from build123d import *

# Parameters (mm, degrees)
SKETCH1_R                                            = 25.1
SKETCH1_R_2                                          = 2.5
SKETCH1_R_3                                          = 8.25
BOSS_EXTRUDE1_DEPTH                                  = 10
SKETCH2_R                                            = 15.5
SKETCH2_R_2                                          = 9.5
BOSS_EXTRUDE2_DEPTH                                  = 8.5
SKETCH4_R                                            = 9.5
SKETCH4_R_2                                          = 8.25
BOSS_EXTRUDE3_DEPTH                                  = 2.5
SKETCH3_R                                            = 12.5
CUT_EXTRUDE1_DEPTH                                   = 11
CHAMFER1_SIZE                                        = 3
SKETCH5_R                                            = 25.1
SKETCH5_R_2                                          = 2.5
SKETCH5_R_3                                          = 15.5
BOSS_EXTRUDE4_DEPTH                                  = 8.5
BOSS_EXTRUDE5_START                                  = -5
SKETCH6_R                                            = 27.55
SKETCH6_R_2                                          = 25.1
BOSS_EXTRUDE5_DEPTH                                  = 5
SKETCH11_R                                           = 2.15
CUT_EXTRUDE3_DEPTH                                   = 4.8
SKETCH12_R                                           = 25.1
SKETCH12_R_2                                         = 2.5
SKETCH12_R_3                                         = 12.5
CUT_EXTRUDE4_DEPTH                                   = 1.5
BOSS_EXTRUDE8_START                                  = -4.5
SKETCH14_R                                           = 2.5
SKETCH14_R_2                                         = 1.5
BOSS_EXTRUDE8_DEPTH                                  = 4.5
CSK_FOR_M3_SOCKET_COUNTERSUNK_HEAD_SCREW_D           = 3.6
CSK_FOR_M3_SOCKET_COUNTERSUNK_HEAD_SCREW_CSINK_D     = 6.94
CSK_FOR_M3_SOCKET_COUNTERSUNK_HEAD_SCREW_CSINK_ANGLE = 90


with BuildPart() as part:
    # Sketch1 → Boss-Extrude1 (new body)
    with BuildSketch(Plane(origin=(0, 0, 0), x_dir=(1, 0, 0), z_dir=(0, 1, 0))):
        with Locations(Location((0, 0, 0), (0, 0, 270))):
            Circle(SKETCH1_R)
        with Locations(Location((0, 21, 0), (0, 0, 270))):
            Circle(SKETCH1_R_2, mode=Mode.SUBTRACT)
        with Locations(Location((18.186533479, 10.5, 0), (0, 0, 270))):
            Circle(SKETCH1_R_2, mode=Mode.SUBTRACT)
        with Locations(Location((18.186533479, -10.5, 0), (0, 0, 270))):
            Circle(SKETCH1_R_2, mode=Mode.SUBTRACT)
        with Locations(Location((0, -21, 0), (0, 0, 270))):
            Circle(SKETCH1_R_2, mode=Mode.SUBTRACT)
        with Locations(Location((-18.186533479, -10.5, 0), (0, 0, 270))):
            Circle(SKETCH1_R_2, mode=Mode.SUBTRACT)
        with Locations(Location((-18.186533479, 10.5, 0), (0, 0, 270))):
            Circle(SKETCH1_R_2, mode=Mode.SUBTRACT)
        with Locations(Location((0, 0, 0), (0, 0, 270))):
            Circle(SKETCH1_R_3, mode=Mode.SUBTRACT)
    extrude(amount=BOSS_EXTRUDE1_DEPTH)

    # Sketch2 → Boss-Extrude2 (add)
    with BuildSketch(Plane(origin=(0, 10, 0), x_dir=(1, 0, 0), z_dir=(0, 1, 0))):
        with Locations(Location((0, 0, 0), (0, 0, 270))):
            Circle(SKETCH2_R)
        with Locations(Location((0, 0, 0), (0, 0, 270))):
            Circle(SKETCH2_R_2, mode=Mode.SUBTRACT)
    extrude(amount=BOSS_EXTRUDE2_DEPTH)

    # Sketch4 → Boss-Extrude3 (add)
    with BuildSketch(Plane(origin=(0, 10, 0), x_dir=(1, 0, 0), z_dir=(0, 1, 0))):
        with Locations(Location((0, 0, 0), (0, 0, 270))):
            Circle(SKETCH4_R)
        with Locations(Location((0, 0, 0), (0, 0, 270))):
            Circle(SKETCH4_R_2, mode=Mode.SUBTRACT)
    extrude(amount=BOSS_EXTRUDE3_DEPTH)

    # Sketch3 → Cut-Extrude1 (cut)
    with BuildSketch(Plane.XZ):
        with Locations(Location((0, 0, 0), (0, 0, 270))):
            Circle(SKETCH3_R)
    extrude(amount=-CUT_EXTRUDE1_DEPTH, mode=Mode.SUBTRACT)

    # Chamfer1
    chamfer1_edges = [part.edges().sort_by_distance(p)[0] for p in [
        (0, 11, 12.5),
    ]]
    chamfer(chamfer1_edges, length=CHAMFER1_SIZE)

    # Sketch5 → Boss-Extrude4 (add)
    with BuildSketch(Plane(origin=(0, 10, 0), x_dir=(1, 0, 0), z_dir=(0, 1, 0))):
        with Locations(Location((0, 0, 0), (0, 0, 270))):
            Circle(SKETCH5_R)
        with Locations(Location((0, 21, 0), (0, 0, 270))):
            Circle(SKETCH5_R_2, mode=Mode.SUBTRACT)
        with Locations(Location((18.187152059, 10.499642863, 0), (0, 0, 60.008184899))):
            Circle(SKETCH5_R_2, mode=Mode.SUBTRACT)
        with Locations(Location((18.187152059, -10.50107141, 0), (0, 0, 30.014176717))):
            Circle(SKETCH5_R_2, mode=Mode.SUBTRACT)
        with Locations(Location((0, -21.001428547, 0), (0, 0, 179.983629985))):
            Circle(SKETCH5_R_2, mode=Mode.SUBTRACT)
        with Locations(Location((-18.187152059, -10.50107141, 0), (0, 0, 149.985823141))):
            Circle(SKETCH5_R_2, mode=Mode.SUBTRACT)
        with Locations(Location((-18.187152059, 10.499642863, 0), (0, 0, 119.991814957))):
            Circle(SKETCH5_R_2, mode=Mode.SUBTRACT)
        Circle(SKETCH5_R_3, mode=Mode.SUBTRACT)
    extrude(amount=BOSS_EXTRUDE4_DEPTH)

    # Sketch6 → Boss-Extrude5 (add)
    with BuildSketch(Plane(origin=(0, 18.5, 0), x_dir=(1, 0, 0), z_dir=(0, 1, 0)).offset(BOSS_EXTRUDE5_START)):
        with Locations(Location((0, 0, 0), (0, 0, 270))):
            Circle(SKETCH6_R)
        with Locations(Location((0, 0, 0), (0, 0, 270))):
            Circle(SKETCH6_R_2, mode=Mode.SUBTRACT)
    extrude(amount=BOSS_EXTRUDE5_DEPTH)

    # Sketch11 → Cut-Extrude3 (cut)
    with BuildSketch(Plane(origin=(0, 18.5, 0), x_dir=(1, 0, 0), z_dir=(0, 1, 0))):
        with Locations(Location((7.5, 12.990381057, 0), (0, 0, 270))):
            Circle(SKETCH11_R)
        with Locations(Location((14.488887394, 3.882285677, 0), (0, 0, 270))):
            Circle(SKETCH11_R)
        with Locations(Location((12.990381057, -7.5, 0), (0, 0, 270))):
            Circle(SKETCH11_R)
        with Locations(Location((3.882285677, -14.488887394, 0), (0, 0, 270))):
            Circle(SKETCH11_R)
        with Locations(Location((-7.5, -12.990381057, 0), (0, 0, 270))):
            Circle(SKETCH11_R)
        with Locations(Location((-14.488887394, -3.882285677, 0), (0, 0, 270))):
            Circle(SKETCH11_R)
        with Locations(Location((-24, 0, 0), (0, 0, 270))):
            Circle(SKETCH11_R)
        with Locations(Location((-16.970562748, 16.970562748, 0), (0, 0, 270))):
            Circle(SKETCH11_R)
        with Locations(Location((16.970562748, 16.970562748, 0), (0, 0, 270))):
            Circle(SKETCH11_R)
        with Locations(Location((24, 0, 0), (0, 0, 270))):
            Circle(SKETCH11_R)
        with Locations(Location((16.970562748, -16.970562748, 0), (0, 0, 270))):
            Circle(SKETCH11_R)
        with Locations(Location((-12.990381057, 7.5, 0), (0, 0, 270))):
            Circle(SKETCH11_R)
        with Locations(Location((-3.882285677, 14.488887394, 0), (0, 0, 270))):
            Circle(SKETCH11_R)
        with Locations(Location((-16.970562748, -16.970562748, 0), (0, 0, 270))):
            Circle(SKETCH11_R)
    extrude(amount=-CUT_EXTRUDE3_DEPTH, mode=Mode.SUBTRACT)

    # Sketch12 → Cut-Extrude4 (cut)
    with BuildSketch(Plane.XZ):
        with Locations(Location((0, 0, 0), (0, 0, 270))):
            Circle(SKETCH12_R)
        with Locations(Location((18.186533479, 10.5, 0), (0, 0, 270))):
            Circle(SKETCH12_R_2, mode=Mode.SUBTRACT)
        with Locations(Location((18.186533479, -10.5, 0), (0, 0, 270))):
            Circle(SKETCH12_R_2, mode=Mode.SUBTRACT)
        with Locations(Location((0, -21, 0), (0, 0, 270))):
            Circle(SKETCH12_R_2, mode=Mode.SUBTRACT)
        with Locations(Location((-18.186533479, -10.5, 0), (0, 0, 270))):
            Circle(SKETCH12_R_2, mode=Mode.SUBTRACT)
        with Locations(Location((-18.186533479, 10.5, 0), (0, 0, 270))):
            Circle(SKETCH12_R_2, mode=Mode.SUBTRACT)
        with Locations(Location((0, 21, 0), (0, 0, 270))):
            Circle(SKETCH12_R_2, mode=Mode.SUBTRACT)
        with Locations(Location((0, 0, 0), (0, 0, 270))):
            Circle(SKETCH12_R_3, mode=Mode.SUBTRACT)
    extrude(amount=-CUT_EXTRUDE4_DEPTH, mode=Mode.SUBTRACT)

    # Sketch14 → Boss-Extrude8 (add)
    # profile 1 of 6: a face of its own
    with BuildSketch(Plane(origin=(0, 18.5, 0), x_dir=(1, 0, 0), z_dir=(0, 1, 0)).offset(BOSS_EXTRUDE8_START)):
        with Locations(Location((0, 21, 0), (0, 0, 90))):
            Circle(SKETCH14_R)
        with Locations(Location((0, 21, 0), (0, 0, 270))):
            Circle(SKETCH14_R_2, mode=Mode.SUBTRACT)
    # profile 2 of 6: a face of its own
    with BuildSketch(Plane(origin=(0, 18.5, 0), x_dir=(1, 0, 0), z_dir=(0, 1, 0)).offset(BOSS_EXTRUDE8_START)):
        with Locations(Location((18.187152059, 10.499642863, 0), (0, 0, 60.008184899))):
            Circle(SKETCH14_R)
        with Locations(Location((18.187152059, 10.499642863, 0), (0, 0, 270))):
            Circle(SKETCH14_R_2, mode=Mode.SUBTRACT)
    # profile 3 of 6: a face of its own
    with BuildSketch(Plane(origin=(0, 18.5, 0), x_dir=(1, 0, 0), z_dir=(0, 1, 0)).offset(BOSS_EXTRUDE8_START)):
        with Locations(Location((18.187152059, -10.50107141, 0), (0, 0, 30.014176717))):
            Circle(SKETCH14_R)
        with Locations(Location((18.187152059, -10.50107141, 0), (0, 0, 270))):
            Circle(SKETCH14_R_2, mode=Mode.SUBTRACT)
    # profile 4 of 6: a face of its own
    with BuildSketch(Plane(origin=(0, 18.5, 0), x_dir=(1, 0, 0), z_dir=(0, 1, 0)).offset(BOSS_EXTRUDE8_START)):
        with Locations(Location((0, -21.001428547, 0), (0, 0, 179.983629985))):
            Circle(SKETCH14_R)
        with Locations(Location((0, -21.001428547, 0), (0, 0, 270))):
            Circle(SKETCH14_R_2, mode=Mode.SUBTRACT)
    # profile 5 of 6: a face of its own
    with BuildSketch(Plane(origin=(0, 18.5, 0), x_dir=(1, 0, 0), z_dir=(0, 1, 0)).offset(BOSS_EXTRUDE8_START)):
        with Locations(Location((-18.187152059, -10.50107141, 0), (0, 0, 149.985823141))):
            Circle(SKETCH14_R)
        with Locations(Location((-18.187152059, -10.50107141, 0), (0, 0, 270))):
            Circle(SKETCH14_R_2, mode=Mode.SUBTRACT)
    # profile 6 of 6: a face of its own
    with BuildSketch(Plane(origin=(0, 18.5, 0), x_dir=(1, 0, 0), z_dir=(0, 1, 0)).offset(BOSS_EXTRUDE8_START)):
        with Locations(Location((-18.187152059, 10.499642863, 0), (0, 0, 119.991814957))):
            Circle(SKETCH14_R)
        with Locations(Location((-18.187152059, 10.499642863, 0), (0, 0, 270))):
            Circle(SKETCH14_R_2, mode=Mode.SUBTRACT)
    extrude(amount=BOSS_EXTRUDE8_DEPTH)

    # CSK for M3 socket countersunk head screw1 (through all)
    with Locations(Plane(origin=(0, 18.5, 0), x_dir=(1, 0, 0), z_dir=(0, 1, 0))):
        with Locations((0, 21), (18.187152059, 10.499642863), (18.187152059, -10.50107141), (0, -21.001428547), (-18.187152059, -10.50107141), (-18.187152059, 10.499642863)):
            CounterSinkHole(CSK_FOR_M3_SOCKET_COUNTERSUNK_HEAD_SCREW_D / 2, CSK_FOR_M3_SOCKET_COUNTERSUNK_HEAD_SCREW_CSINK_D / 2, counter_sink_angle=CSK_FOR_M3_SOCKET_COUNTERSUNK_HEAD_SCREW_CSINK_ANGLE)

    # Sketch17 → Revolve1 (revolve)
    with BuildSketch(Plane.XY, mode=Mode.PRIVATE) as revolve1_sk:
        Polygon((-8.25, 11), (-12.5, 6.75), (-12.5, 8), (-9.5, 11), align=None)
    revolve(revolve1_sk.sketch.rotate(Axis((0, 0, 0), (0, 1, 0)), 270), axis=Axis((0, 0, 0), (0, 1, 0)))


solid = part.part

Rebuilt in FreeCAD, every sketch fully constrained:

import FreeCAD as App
import Part
import Sketcher

V = App.Vector
Q = App.Units.Quantity


def edges_at(feature, points):
    """Names of the edges that pass closest to the given points."""
    edges = feature.Shape.Edges
    near = lambda p: min(range(len(edges)), key=lambda i: edges[i].distToShape(Part.Vertex(*p))[0])
    return sorted({f"Edge{near(p) + 1}" for p in points})

doc = App.newDocument("Part")
body = doc.addObject("PartDesign::Body", "Body")

# Sketch on XZ plane
sketch1 = doc.addObject("Sketcher::SketchObject", "Sketch")
body.addObject(sketch1)
sketch1.AttachmentSupport = (doc.XZ_Plane, [""])
sketch1.MapMode = "FlatFace"
sketch1.addGeometry([
    Part.Circle(V(0, 0, 0), V(0, 0, 1), 25.1),  # 0
    Part.Circle(V(-18.2, -10.5, 0), V(0, 0, 1), 2.5),  # 1
    Part.Circle(V(0, -21, 0), V(0, 0, 1), 2.5),  # 2
    Part.Circle(V(-18.2, 10.5, 0), V(0, 0, 1), 2.5),  # 3
    Part.Circle(V(18.2, -10.5, 0), V(0, 0, 1), 2.5),  # 4
    Part.Circle(V(0, 0, 0), V(0, 0, 1), 8.2),  # 5
    Part.Circle(V(0, 21, 0), V(0, 0, 1), 2.5),  # 6
    Part.Circle(V(18.2, 10.5, 0), V(0, 0, 1), 2.5),  # 7
], False)
sketch1.addConstraint([
    Sketcher.Constraint("Coincident", 0, 3, -1, 1),
    Sketcher.Constraint("Coincident", 5, 3, -1, 1),
    Sketcher.Constraint("Equal", 1, 2),
    Sketcher.Constraint("Equal", 2, 3),
    Sketcher.Constraint("Equal", 3, 4),
    Sketcher.Constraint("Equal", 4, 6),
    Sketcher.Constraint("Equal", 6, 7),
    Sketcher.Constraint("Symmetric", 3, 3, 4, 3, -1, 1),
    Sketcher.Constraint("Symmetric", 2, 3, 6, 3, -1, 1),
    Sketcher.Constraint("Symmetric", 1, 3, 7, 3, -1, 1),
    Sketcher.Constraint("Symmetric", 1, 3, 4, 3, -2),
    Sketcher.Constraint("PointOnObject", 2, 3, -2),
    Sketcher.Constraint("Diameter", 1, Q("5 mm")),
    Sketcher.Constraint("Diameter", 0, Q("50.2 mm")),
    Sketcher.Constraint("Diameter", 5, Q("16.5 mm")),
    Sketcher.Constraint("DistanceY", 2, 3, -1, 1, Q("21 mm")),
    Sketcher.Constraint("DistanceY", 1, 3, 3, 3, Q("21 mm")),
    Sketcher.Constraint("DistanceX", 1, 3, -1, 1, Q("18.186533 mm")),
])
pad1 = doc.addObject("PartDesign::Pad", "Pad")
body.addObject(pad1)
pad1.Profile = sketch1
pad1.Length = 10
pad1.Reversed = True

# Sketch on XZ plane
sketch2 = doc.addObject("Sketcher::SketchObject", "Sketch001")
body.addObject(sketch2)
sketch2.AttachmentSupport = (doc.XZ_Plane, [""])
sketch2.MapMode = "FlatFace"
sketch2.AttachmentOffset = App.Placement(V(0, 0, -10), App.Rotation())
sketch2.addGeometry([
    Part.Circle(V(0, 0, 0), V(0, 0, 1), 16),
    Part.Circle(V(0, 0, 0), V(0, 0, 1), 10),
], False)
sketch2.addConstraint([
    Sketcher.Constraint("Coincident", 0, 3, -1, 1),
    Sketcher.Constraint("Coincident", 1, 3, -1, 1),
    Sketcher.Constraint("Diameter", 0, Q("31 mm")),
    Sketcher.Constraint("Diameter", 1, Q("19 mm")),
])
pad2 = doc.addObject("PartDesign::Pad", "Pad001")
body.addObject(pad2)
pad2.Profile = sketch2
pad2.Length = 8.5
pad2.Reversed = True

# Sketch on XZ plane
sketch3 = doc.addObject("Sketcher::SketchObject", "Sketch002")
body.addObject(sketch3)
sketch3.AttachmentSupport = (doc.XZ_Plane, [""])
sketch3.MapMode = "FlatFace"
sketch3.AttachmentOffset = App.Placement(V(0, 0, -10), App.Rotation())
sketch3.addGeometry([
    Part.Circle(V(0, 0, 0), V(0, 0, 1), 10),
    Part.Circle(V(0, 0, 0), V(0, 0, 1), 8),
], False)
sketch3.addConstraint([
    Sketcher.Constraint("Coincident", 0, 3, -1, 1),
    Sketcher.Constraint("Coincident", 1, 3, -1, 1),
    Sketcher.Constraint("Diameter", 0, Q("19 mm")),
    Sketcher.Constraint("Diameter", 1, Q("16.5 mm")),
])
pad3 = doc.addObject("PartDesign::Pad", "Pad002")
body.addObject(pad3)
pad3.Profile = sketch3
pad3.Length = 2.5
pad3.Reversed = True

# Sketch on XZ plane
sketch4 = doc.addObject("Sketcher::SketchObject", "Sketch003")
body.addObject(sketch4)
sketch4.AttachmentSupport = (doc.XZ_Plane, [""])
sketch4.MapMode = "FlatFace"
sketch4.addGeometry(Part.Circle(V(0, 0, 0), V(0, 0, 1), 12), False)
sketch4.addConstraint([
    Sketcher.Constraint("Coincident", 0, 3, -1, 1),
    Sketcher.Constraint("Diameter", 0, Q("25 mm")),
])
pocket1 = doc.addObject("PartDesign::Pocket", "Pocket")
body.addObject(pocket1)
pocket1.Profile = sketch4
pocket1.Length = 11
doc.recompute()

chamfer = doc.addObject("PartDesign::Chamfer", "Chamfer")
body.addObject(chamfer)
chamfer.Base = (pocket1, edges_at(pocket1, [(0, 11, 12.5)]))
chamfer.Size = 3

# Sketch on XZ plane
sketch5 = doc.addObject("Sketcher::SketchObject", "Sketch004")
body.addObject(sketch5)
sketch5.AttachmentSupport = (doc.XZ_Plane, [""])
sketch5.MapMode = "FlatFace"
sketch5.AttachmentOffset = App.Placement(V(0, 0, -10), App.Rotation())
sketch5.addGeometry([
    Part.Circle(V(0, 0, 0), V(0, 0, 1), 25.1),  # 0
    Part.Circle(V(-18.2, -10.5, 0), V(0, 0, 1), 2.5),  # 1
    Part.Circle(V(0, -21, 0), V(0, 0, 1), 2.5),  # 2
    Part.Circle(V(-18.2, 10.5, 0), V(0, 0, 1), 2.5),  # 3
    Part.Circle(V(0, 0, 0), V(0, 0, 1), 15.5),  # 4
    Part.Circle(V(18.2, -10.5, 0), V(0, 0, 1), 2.5),  # 5
    Part.Circle(V(0, 21, 0), V(0, 0, 1), 2.5),  # 6
    Part.Circle(V(18.2, 10.5, 0), V(0, 0, 1), 2.5),  # 7
], False)
sketch5.addConstraint([
    Sketcher.Constraint("Coincident", 0, 3, -1, 1),
    Sketcher.Constraint("Coincident", 4, 3, -1, 1),
    Sketcher.Constraint("Equal", 1, 2),
    Sketcher.Constraint("Equal", 2, 3),
    Sketcher.Constraint("Equal", 3, 5),
    Sketcher.Constraint("Equal", 5, 6),
    Sketcher.Constraint("Equal", 6, 7),
    Sketcher.Constraint("Symmetric", 1, 3, 5, 3, -2),
    Sketcher.Constraint("Symmetric", 3, 3, 7, 3, -2),
    Sketcher.Constraint("PointOnObject", 2, 3, -2),
    Sketcher.Constraint("PointOnObject", 6, 3, -2),
    Sketcher.Constraint("Vertical", 1, 3, 3, 3),
    Sketcher.Constraint("Diameter", 1, Q("5 mm")),
    Sketcher.Constraint("Diameter", 4, Q("31 mm")),
    Sketcher.Constraint("Diameter", 0, Q("50.2 mm")),
    Sketcher.Constraint("DistanceY", 2, 3, -1, 1, Q("21 mm")),
    Sketcher.Constraint("DistanceY", -1, 1, 3, 3, Q("10.501071 mm")),
    Sketcher.Constraint("DistanceY", -1, 1, 6, 3, Q("21.001429 mm")),
    Sketcher.Constraint("DistanceY", 1, 3, 6, 3, Q("31.501071 mm")),
    Sketcher.Constraint("DistanceX", 1, 3, -1, 1, Q("18.187152 mm")),
])
pad4 = doc.addObject("PartDesign::Pad", "Pad003")
body.addObject(pad4)
pad4.Profile = sketch5
pad4.Length = 8.5
pad4.Reversed = True

# Sketch on XZ plane
sketch6 = doc.addObject("Sketcher::SketchObject", "Sketch005")
body.addObject(sketch6)
sketch6.AttachmentSupport = (doc.XZ_Plane, [""])
sketch6.MapMode = "FlatFace"
sketch6.AttachmentOffset = App.Placement(V(0, 0, -13.5), App.Rotation())
sketch6.addGeometry([
    Part.Circle(V(0, 0, 0), V(0, 0, 1), 28),
    Part.Circle(V(0, 0, 0), V(0, 0, 1), 25),
], False)
sketch6.addConstraint([
    Sketcher.Constraint("Coincident", 0, 3, -1, 1),
    Sketcher.Constraint("Coincident", 1, 3, -1, 1),
    Sketcher.Constraint("Diameter", 0, Q("55.1 mm")),
    Sketcher.Constraint("Diameter", 1, Q("50.2 mm")),
])
pad5 = doc.addObject("PartDesign::Pad", "Pad004")
body.addObject(pad5)
pad5.Profile = sketch6
pad5.Length = 5
pad5.Reversed = True

# Sketch on XZ plane
sketch7 = doc.addObject("Sketcher::SketchObject", "Sketch006")
body.addObject(sketch7)
sketch7.AttachmentSupport = (doc.XZ_Plane, [""])
sketch7.MapMode = "FlatFace"
sketch7.AttachmentOffset = App.Placement(V(0, 0, -18.5), App.Rotation())
sketch7.addGeometry([
    Part.Circle(V(7.5, -13, 0), V(0, 0, 1), 2.1),  # 0
    Part.Circle(V(14.5, -3.9, 0), V(0, 0, 1), 2.1),  # 1
    Part.Circle(V(13, 7.5, 0), V(0, 0, 1), 2.1),  # 2
    Part.Circle(V(3.9, 14.5, 0), V(0, 0, 1), 2.1),  # 3
    Part.Circle(V(-7.5, 13, 0), V(0, 0, 1), 2.1),  # 4
    Part.Circle(V(-14.5, 3.9, 0), V(0, 0, 1), 2.1),  # 5
    Part.Circle(V(-24, 0, 0), V(0, 0, 1), 2.1),  # 6
    Part.Circle(V(-17, -17, 0), V(0, 0, 1), 2.1),  # 7
    Part.Circle(V(17, -17, 0), V(0, 0, 1), 2.1),  # 8
    Part.Circle(V(24, 0, 0), V(0, 0, 1), 2.1),  # 9
    Part.Circle(V(17, 17, 0), V(0, 0, 1), 2.1),  # 10
    Part.Circle(V(-13, -7.5, 0), V(0, 0, 1), 2.1),  # 11
    Part.Circle(V(-3.9, -14.5, 0), V(0, 0, 1), 2.1),  # 12
    Part.Circle(V(-17, 17, 0), V(0, 0, 1), 2.1),  # 13
], False)
sketch7.addConstraint([
    Sketcher.Constraint("Equal", 0, 1),
    Sketcher.Constraint("Equal", 1, 2),
    Sketcher.Constraint("Equal", 2, 3),
    Sketcher.Constraint("Equal", 3, 4),
    Sketcher.Constraint("Equal", 4, 5),
    Sketcher.Constraint("Equal", 5, 6),
    Sketcher.Constraint("Equal", 6, 7),
    Sketcher.Constraint("Equal", 7, 8),
    Sketcher.Constraint("Equal", 8, 9),
    Sketcher.Constraint("Equal", 9, 10),
    Sketcher.Constraint("Equal", 10, 11),
    Sketcher.Constraint("Equal", 11, 12),
    Sketcher.Constraint("Equal", 12, 13),
    Sketcher.Constraint("Symmetric", 0, 3, 4, 3, -1, 1),
    Sketcher.Constraint("Symmetric", 1, 3, 5, 3, -1, 1),
    Sketcher.Constraint("Symmetric", 6, 3, 9, 3, -1, 1),
    Sketcher.Constraint("Symmetric", 7, 3, 10, 3, -1, 1),
    Sketcher.Constraint("Symmetric", 2, 3, 11, 3, -1, 1),
    Sketcher.Constraint("Symmetric", 3, 3, 12, 3, -1, 1),
    Sketcher.Constraint("Symmetric", 8, 3, 13, 3, -1, 1),
    Sketcher.Constraint("Symmetric", 7, 3, 8, 3, -2),
    Sketcher.Constraint("PointOnObject", 6, 3, -1),
    Sketcher.Constraint("Diameter", 0, Q("4.3 mm")),
    Sketcher.Constraint("DistanceX", 6, 3, -1, 1, Q("24 mm")),
    Sketcher.Constraint("DistanceX", 4, 3, 0, 3, Q("15 mm")),
    Sketcher.Constraint("DistanceY", -1, 1, 2, 3, Q("7.5 mm")),
    Sketcher.Constraint("DistanceX", 3, 3, 1, 3, Q("10.606602 mm")),
    Sketcher.Constraint("DistanceY", 5, 3, 3, 3, Q("10.606602 mm")),
    Sketcher.Constraint("DistanceY", 0, 3, -1, 1, Q("12.990381 mm")),
    Sketcher.Constraint("DistanceX", -1, 1, 2, 3, Q("12.990381 mm")),
    Sketcher.Constraint("DistanceY", 0, 3, 3, 3, Q("27.479268 mm")),
    Sketcher.Constraint("DistanceX", 5, 3, 2, 3, Q("27.479268 mm")),
    Sketcher.Constraint("DistanceY", 7, 3, 5, 3, Q("20.852848 mm")),
    Sketcher.Constraint("DistanceX", 7, 3, 1, 3, Q("31.45945 mm")),
])
pocket2 = doc.addObject("PartDesign::Pocket", "Pocket001")
body.addObject(pocket2)
pocket2.Profile = sketch7
pocket2.Length = 4.8
pocket2.Reversed = True

# Sketch on XZ plane
sketch8 = doc.addObject("Sketcher::SketchObject", "Sketch007")
body.addObject(sketch8)
sketch8.AttachmentSupport = (doc.XZ_Plane, [""])
sketch8.MapMode = "FlatFace"
sketch8.addGeometry([
    Part.Circle(V(0, 0, 0), V(0, 0, 1), 25.1),  # 0
    Part.Circle(V(-18.2, 10.5, 0), V(0, 0, 1), 2.5),  # 1
    Part.Circle(V(0, 21, 0), V(0, 0, 1), 2.5),  # 2
    Part.Circle(V(-18.2, -10.5, 0), V(0, 0, 1), 2.5),  # 3
    Part.Circle(V(18.2, 10.5, 0), V(0, 0, 1), 2.5),  # 4
    Part.Circle(V(0, 0, 0), V(0, 0, 1), 12.5),  # 5
    Part.Circle(V(0, -21, 0), V(0, 0, 1), 2.5),  # 6
    Part.Circle(V(18.2, -10.5, 0), V(0, 0, 1), 2.5),  # 7
], False)
sketch8.addConstraint([
    Sketcher.Constraint("Coincident", 0, 3, -1, 1),
    Sketcher.Constraint("Coincident", 5, 3, -1, 1),
    Sketcher.Constraint("Equal", 1, 2),
    Sketcher.Constraint("Equal", 2, 3),
    Sketcher.Constraint("Equal", 3, 4),
    Sketcher.Constraint("Equal", 4, 6),
    Sketcher.Constraint("Equal", 6, 7),
    Sketcher.Constraint("Symmetric", 3, 3, 4, 3, -1, 1),
    Sketcher.Constraint("Symmetric", 2, 3, 6, 3, -1, 1),
    Sketcher.Constraint("Symmetric", 1, 3, 7, 3, -1, 1),
    Sketcher.Constraint("Symmetric", 1, 3, 4, 3, -2),
    Sketcher.Constraint("PointOnObject", 2, 3, -2),
    Sketcher.Constraint("Diameter", 1, Q("5 mm")),
    Sketcher.Constraint("Diameter", 5, Q("25 mm")),
    Sketcher.Constraint("Diameter", 0, Q("50.2 mm")),
    Sketcher.Constraint("DistanceY", -1, 1, 2, 3, Q("21 mm")),
    Sketcher.Constraint("DistanceY", 3, 3, 1, 3, Q("21 mm")),
    Sketcher.Constraint("DistanceX", 1, 3, -1, 1, Q("18.186533 mm")),
])
pocket3 = doc.addObject("PartDesign::Pocket", "Pocket002")
body.addObject(pocket3)
pocket3.Profile = sketch8
pocket3.Length = 1.5

# Sketch on XZ plane
sketch9 = doc.addObject("Sketcher::SketchObject", "Sketch008")
body.addObject(sketch9)
sketch9.AttachmentSupport = (doc.XZ_Plane, [""])
sketch9.MapMode = "FlatFace"
sketch9.AttachmentOffset = App.Placement(V(0, 0, -14), App.Rotation())
sketch9.addGeometry([
    Part.Circle(V(0, -21, 0), V(0, 0, 1), 2.5),  # 0
    Part.Circle(V(0, -21, 0), V(0, 0, 1), 1.5),  # 1
    Part.Circle(V(18.2, -10.5, 0), V(0, 0, 1), 2.5),  # 2
    Part.Circle(V(18.2, -10.5, 0), V(0, 0, 1), 1.5),  # 3
    Part.Circle(V(18.2, 10.5, 0), V(0, 0, 1), 2.5),  # 4
    Part.Circle(V(18.2, 10.5, 0), V(0, 0, 1), 1.5),  # 5
    Part.Circle(V(0, 21, 0), V(0, 0, 1), 2.5),  # 6
    Part.Circle(V(0, 21, 0), V(0, 0, 1), 1.5),  # 7
    Part.Circle(V(-18.2, 10.5, 0), V(0, 0, 1), 2.5),  # 8
    Part.Circle(V(-18.2, 10.5, 0), V(0, 0, 1), 1.5),  # 9
    Part.Circle(V(-18.2, -10.5, 0), V(0, 0, 1), 2.5),  # 10
    Part.Circle(V(-18.2, -10.5, 0), V(0, 0, 1), 1.5),  # 11
], False)
sketch9.addConstraint([
    Sketcher.Constraint("Coincident", 1, 3, 0, 3),
    Sketcher.Constraint("Coincident", 3, 3, 2, 3),
    Sketcher.Constraint("Coincident", 5, 3, 4, 3),
    Sketcher.Constraint("Coincident", 7, 3, 6, 3),
    Sketcher.Constraint("Coincident", 9, 3, 8, 3),
    Sketcher.Constraint("Coincident", 11, 3, 10, 3),
    Sketcher.Constraint("Equal", 0, 2),
    Sketcher.Constraint("Equal", 1, 3),
    Sketcher.Constraint("Equal", 2, 4),
    Sketcher.Constraint("Equal", 3, 5),
    Sketcher.Constraint("Equal", 4, 6),
    Sketcher.Constraint("Equal", 5, 7),
    Sketcher.Constraint("Equal", 6, 8),
    Sketcher.Constraint("Equal", 7, 9),
    Sketcher.Constraint("Equal", 8, 10),
    Sketcher.Constraint("Equal", 9, 11),
    Sketcher.Constraint("Symmetric", 4, 3, 8, 3, -2),
    Sketcher.Constraint("Symmetric", 2, 3, 10, 3, -2),
    Sketcher.Constraint("PointOnObject", 0, 3, -2),
    Sketcher.Constraint("PointOnObject", 6, 3, -2),
    Sketcher.Constraint("Vertical", 3, 3, 4, 3),
    Sketcher.Constraint("Diameter", 0, Q("5 mm")),
    Sketcher.Constraint("Diameter", 1, Q("3 mm")),
    Sketcher.Constraint("DistanceY", 0, 3, -1, 1, Q("21 mm")),
    Sketcher.Constraint("DistanceY", -1, 1, 4, 3, Q("10.501071 mm")),
    Sketcher.Constraint("DistanceY", -1, 1, 6, 3, Q("21.001429 mm")),
    Sketcher.Constraint("DistanceY", 2, 3, 6, 3, Q("31.501071 mm")),
    Sketcher.Constraint("DistanceX", -1, 1, 2, 3, Q("18.187152 mm")),
])
pad6 = doc.addObject("PartDesign::Pad", "Pad005")
body.addObject(pad6)
pad6.Profile = sketch9
pad6.Length = 4.5
pad6.Reversed = True

# Sketch on XZ plane
sketch10 = doc.addObject("Sketcher::SketchObject", "Sketch009")
body.addObject(sketch10)
sketch10.AttachmentSupport = (doc.XZ_Plane, [""])
sketch10.MapMode = "FlatFace"
sketch10.AttachmentOffset = App.Placement(V(0, 0, -18.5), App.Rotation())
sketch10.addGeometry([
    Part.Circle(V(0, -21, 0), V(0, 0, 1), 1.8),  # 0
    Part.Circle(V(18.2, -10.5, 0), V(0, 0, 1), 1.8),  # 1
    Part.Circle(V(18.2, 10.5, 0), V(0, 0, 1), 1.8),  # 2
    Part.Circle(V(0, 21, 0), V(0, 0, 1), 1.8),  # 3
    Part.Circle(V(-18.2, 10.5, 0), V(0, 0, 1), 1.8),  # 4
    Part.Circle(V(-18.2, -10.5, 0), V(0, 0, 1), 1.8),  # 5
], False)
sketch10.addConstraint([
    Sketcher.Constraint("Equal", 0, 1),
    Sketcher.Constraint("Equal", 1, 2),
    Sketcher.Constraint("Equal", 2, 3),
    Sketcher.Constraint("Equal", 3, 4),
    Sketcher.Constraint("Equal", 4, 5),
    Sketcher.Constraint("Symmetric", 2, 3, 4, 3, -2),
    Sketcher.Constraint("Symmetric", 1, 3, 5, 3, -2),
    Sketcher.Constraint("PointOnObject", 0, 3, -2),
    Sketcher.Constraint("PointOnObject", 3, 3, -2),
    Sketcher.Constraint("Vertical", 1, 3, 2, 3),
    Sketcher.Constraint("Diameter", 0, Q("3.6 mm")),
    Sketcher.Constraint("DistanceY", 0, 3, -1, 1, Q("21 mm")),
    Sketcher.Constraint("DistanceY", -1, 1, 2, 3, Q("10.501071 mm")),
    Sketcher.Constraint("DistanceY", -1, 1, 3, 3, Q("21.001429 mm")),
    Sketcher.Constraint("DistanceY", 1, 3, 3, 3, Q("31.501071 mm")),
    Sketcher.Constraint("DistanceX", -1, 1, 1, 3, Q("18.187152 mm")),
])
doc.recompute()
hole = doc.addObject("PartDesign::Hole", "Hole")
body.addObject(hole)
hole.Profile = sketch10
hole.ThreadType = "None"
hole.Diameter = 3.6
hole.DepthType = "ThroughAll"
hole.HoleCutType = "Countersink"
hole.HoleCutDiameter = 6.94
hole.HoleCutCountersinkAngle = 90
hole.Reversed = True

# Sketch on XY plane
sketch11 = doc.addObject("Sketcher::SketchObject", "Sketch010")
body.addObject(sketch11)
sketch11.AttachmentSupport = (doc.XY_Plane, [""])
sketch11.MapMode = "FlatFace"
sketch11.addGeometry([
    Part.LineSegment(V(-12.5, 6.8, 0), V(-8.2, 11, 0)),
    Part.LineSegment(V(-8.2, 11, 0), V(-9.5, 11, 0)),
    Part.LineSegment(V(-9.5, 11, 0), V(-12.5, 8, 0)),
    Part.LineSegment(V(-12.5, 8, 0), V(-12.5, 6.8, 0)),
], False)
sketch11.addConstraint([
    Sketcher.Constraint("Coincident", 0, 2, 1, 1),
    Sketcher.Constraint("Coincident", 1, 2, 2, 1),
    Sketcher.Constraint("Coincident", 2, 2, 3, 1),
    Sketcher.Constraint("Coincident", 3, 2, 0, 1),
    Sketcher.Constraint("Horizontal", 1),
    Sketcher.Constraint("Vertical", 3),
    Sketcher.Constraint("Parallel", 0, 2),
    Sketcher.Constraint("Equal", 1, 3),
    Sketcher.Constraint("DistanceY", -1, 1, 0, 2, Q("11 mm")),
    Sketcher.Constraint("DistanceY", -1, 1, 2, 2, Q("8 mm")),
    Sketcher.Constraint("DistanceX", 1, 2, 1, 1, Q("1.25 mm")),
    Sketcher.Constraint("DistanceX", 1, 2, -1, 1, Q("9.5 mm")),
])
revolution = doc.addObject("PartDesign::Revolution", "Revolution")
body.addObject(revolution)
revolution.Profile = sketch11
revolution.ReferenceAxis = (sketch11, ["V_Axis"])
revolution.Angle = 360

doc.recompute()
